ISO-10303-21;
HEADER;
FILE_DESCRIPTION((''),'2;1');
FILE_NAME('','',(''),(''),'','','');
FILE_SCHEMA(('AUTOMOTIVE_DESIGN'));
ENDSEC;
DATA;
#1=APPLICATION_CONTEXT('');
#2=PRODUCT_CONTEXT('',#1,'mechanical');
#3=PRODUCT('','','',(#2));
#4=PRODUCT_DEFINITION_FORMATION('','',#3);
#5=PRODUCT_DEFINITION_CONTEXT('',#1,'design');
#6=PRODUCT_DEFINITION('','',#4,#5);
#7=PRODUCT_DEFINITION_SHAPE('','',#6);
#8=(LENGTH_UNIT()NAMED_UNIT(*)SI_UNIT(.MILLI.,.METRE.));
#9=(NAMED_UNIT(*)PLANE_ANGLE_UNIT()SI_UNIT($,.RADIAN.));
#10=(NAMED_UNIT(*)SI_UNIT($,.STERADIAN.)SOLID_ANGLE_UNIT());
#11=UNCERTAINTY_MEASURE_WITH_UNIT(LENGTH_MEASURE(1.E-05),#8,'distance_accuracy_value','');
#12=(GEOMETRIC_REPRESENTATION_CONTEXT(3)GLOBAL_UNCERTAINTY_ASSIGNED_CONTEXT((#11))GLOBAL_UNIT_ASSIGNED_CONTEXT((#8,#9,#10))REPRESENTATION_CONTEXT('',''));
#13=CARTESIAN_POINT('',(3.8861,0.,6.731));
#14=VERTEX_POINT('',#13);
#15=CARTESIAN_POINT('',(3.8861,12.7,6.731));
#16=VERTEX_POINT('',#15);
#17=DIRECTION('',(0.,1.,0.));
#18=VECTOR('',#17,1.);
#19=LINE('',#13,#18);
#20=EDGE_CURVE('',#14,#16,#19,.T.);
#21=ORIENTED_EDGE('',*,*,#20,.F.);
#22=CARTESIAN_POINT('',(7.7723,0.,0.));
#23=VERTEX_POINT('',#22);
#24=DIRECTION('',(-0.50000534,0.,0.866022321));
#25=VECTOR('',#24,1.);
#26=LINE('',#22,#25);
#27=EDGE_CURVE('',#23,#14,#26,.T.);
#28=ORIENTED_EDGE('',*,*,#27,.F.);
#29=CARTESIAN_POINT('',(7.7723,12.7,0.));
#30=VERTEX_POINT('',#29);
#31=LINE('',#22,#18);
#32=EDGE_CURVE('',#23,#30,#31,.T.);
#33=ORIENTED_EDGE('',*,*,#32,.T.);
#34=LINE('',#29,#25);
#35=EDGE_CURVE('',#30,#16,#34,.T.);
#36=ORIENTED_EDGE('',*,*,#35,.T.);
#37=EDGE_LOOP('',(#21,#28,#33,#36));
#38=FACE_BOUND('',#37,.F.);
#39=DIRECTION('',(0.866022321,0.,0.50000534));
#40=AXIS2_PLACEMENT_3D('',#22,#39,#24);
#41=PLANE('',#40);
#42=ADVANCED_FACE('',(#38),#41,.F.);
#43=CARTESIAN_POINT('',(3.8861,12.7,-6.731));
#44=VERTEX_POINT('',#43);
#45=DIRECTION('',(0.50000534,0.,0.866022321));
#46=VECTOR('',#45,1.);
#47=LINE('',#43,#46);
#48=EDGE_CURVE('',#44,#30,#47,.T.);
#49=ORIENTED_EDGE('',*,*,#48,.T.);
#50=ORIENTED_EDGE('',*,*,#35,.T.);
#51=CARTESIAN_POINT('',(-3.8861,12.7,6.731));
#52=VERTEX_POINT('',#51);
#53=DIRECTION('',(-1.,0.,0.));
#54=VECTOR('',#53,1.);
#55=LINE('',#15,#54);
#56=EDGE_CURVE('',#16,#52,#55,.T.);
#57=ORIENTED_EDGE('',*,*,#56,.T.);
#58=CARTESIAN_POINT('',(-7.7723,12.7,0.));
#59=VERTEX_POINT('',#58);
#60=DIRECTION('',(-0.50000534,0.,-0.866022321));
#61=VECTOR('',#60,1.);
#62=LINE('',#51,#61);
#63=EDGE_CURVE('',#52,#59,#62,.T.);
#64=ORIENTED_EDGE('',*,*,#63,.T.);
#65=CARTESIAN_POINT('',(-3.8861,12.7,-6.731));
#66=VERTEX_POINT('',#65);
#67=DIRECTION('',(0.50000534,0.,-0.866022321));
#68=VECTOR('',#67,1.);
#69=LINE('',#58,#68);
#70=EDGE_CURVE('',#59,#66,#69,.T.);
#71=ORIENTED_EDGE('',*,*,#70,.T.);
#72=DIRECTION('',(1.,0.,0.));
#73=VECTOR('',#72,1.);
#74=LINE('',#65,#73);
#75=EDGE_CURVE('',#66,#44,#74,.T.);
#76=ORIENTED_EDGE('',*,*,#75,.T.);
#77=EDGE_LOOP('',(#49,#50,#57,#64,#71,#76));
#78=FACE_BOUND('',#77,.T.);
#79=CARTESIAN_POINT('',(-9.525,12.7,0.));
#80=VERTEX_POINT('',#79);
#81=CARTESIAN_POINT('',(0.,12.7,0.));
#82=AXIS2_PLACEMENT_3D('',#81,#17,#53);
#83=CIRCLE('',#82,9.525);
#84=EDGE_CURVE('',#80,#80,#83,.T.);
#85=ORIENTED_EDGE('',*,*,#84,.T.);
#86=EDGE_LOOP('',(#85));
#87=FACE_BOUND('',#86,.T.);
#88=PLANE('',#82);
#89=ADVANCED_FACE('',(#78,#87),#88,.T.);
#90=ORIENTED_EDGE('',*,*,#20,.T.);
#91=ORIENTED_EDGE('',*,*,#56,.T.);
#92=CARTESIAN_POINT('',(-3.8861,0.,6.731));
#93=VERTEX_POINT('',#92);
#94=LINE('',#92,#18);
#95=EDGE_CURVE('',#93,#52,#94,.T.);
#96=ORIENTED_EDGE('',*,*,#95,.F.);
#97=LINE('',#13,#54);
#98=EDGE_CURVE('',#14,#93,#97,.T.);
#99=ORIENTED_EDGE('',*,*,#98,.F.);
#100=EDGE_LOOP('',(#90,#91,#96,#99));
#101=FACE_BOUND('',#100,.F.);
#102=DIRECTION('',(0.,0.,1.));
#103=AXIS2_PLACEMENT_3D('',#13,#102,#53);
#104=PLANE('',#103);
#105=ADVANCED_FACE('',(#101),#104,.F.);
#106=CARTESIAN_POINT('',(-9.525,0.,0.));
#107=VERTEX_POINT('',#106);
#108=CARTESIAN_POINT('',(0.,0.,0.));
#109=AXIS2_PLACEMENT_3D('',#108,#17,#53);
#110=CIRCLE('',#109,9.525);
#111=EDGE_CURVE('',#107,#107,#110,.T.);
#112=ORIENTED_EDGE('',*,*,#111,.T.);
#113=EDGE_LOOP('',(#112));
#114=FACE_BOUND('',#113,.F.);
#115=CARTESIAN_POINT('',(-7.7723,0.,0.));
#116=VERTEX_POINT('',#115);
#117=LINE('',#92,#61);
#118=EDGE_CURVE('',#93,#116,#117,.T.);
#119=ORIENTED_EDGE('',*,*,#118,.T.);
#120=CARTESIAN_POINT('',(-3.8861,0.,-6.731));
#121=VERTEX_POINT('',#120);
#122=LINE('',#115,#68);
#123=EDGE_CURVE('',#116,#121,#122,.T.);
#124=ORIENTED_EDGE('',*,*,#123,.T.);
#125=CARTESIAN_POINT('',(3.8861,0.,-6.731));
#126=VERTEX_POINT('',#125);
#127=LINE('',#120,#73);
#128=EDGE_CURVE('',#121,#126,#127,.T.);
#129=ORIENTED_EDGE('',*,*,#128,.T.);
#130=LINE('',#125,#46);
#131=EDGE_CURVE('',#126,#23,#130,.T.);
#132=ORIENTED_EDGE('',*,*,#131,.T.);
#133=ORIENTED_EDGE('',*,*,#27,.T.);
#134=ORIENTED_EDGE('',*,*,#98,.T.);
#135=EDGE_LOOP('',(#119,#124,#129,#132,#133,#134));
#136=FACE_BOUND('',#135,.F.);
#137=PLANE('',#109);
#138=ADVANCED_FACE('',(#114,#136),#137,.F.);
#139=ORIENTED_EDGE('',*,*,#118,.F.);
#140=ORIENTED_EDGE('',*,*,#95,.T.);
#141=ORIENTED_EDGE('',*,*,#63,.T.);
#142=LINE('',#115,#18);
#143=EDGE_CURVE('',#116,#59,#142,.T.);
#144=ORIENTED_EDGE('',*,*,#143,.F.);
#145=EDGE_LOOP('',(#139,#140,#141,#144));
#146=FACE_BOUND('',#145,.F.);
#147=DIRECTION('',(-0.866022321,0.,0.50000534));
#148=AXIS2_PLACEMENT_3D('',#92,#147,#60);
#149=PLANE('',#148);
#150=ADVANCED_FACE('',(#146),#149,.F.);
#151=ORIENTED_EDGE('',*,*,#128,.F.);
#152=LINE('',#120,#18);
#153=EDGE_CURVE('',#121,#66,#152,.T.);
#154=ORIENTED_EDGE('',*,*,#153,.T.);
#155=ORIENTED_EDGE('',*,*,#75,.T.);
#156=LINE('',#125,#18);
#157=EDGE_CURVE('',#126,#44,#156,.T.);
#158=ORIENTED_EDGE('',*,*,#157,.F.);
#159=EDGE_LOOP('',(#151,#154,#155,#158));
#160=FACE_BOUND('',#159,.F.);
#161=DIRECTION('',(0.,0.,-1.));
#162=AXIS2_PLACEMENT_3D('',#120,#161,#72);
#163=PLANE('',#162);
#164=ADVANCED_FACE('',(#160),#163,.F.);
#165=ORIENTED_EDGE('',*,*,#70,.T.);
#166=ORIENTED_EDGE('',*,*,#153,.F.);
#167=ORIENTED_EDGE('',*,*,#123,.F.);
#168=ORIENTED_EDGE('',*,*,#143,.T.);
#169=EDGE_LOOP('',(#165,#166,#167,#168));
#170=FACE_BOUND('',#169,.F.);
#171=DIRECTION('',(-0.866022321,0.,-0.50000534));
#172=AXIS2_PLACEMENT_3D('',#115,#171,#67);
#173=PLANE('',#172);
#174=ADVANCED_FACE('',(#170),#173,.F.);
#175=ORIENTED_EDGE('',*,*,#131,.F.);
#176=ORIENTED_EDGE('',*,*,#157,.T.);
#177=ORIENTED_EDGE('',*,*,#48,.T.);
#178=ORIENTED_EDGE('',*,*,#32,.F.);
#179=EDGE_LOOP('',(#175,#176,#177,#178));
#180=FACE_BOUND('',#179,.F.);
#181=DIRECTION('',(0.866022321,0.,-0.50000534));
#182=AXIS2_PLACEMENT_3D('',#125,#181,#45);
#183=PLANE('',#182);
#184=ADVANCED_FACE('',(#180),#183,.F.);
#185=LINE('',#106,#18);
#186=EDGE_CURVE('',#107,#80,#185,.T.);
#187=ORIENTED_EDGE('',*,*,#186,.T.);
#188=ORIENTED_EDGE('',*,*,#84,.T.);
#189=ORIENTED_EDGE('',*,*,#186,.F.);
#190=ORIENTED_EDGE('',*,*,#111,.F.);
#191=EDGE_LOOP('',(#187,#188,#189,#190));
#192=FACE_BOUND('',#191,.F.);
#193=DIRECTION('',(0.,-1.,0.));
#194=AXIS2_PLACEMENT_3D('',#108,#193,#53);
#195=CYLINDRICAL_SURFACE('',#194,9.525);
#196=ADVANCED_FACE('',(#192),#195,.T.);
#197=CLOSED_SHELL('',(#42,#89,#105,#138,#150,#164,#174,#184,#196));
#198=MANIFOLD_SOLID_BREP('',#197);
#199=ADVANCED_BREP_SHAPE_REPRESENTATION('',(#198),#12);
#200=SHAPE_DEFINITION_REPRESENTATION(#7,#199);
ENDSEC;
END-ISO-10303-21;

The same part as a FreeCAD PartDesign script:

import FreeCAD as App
import Part
import Sketcher
Q = App.Units.Quantity

doc = App.newDocument("Part")
body = doc.addObject("PartDesign::Body", "Body")

sketch1 = body.newObject("Sketcher::SketchObject", "Sketch")
sketch1.AttachmentSupport = (doc.getObject("XZ_Plane"), [""])
sketch1.MapMode = "FlatFace"
sketch1.addGeometry([
    Part.Circle(App.Vector(0, 0, 0), App.Vector(0, 0, 1), 10),
    Part.LineSegment(App.Vector(8, 0, 0), App.Vector(4, 7, 0)),
    Part.LineSegment(App.Vector(4, 7, 0), App.Vector(-4, 7, 0)),
    Part.LineSegment(App.Vector(-4, 7, 0), App.Vector(-8, 0, 0)),
    Part.LineSegment(App.Vector(-8, 0, 0), App.Vector(-4, -7, 0)),
    Part.LineSegment(App.Vector(-4, -7, 0), App.Vector(4, -7, 0)),
    Part.LineSegment(App.Vector(4, -7, 0), App.Vector(8, 0, 0)),
], False)
sketch1.addConstraint([
    Sketcher.Constraint("Coincident", 1, 2, 2, 1),
    Sketcher.Constraint("Coincident", 2, 2, 3, 1),
    Sketcher.Constraint("Coincident", 3, 2, 4, 1),
    Sketcher.Constraint("Coincident", 4, 2, 5, 1),
    Sketcher.Constraint("Coincident", 5, 2, 6, 1),
    Sketcher.Constraint("Coincident", 6, 2, 1, 1),
    Sketcher.Constraint("Horizontal", 2),
    Sketcher.Constraint("Horizontal", 5),
    Sketcher.Constraint("Coincident", 0, 3, -1, 1),
    Sketcher.Constraint("Symmetric", 1, 2, 4, 2, -1, 1),
    Sketcher.Constraint("Symmetric", 3, 2, 6, 2, -1, 1),
    Sketcher.Constraint("PointOnObject", 3, 2, -1),
    Sketcher.Constraint("Parallel", 3, 6),
    Sketcher.Constraint("Vertical", 2, 2, 4, 2),
    Sketcher.Constraint("Diameter", 0, Q("0.75 in")),
    Sketcher.Constraint("DistanceY", 4, 2, 2, 2, Q("0.53 in")),
    Sketcher.Constraint("Angle", 1, Q("120.0004 deg")),
    Sketcher.Constraint("DistanceX", 2, 2, 2, 1, Q("0.306 in")),
])
pad1 = body.newObject("PartDesign::Pad", "Pad")
pad1.Profile = sketch1
pad1.Length = Q("0.5 in")
pad1.Reversed = True

doc.recompute()
